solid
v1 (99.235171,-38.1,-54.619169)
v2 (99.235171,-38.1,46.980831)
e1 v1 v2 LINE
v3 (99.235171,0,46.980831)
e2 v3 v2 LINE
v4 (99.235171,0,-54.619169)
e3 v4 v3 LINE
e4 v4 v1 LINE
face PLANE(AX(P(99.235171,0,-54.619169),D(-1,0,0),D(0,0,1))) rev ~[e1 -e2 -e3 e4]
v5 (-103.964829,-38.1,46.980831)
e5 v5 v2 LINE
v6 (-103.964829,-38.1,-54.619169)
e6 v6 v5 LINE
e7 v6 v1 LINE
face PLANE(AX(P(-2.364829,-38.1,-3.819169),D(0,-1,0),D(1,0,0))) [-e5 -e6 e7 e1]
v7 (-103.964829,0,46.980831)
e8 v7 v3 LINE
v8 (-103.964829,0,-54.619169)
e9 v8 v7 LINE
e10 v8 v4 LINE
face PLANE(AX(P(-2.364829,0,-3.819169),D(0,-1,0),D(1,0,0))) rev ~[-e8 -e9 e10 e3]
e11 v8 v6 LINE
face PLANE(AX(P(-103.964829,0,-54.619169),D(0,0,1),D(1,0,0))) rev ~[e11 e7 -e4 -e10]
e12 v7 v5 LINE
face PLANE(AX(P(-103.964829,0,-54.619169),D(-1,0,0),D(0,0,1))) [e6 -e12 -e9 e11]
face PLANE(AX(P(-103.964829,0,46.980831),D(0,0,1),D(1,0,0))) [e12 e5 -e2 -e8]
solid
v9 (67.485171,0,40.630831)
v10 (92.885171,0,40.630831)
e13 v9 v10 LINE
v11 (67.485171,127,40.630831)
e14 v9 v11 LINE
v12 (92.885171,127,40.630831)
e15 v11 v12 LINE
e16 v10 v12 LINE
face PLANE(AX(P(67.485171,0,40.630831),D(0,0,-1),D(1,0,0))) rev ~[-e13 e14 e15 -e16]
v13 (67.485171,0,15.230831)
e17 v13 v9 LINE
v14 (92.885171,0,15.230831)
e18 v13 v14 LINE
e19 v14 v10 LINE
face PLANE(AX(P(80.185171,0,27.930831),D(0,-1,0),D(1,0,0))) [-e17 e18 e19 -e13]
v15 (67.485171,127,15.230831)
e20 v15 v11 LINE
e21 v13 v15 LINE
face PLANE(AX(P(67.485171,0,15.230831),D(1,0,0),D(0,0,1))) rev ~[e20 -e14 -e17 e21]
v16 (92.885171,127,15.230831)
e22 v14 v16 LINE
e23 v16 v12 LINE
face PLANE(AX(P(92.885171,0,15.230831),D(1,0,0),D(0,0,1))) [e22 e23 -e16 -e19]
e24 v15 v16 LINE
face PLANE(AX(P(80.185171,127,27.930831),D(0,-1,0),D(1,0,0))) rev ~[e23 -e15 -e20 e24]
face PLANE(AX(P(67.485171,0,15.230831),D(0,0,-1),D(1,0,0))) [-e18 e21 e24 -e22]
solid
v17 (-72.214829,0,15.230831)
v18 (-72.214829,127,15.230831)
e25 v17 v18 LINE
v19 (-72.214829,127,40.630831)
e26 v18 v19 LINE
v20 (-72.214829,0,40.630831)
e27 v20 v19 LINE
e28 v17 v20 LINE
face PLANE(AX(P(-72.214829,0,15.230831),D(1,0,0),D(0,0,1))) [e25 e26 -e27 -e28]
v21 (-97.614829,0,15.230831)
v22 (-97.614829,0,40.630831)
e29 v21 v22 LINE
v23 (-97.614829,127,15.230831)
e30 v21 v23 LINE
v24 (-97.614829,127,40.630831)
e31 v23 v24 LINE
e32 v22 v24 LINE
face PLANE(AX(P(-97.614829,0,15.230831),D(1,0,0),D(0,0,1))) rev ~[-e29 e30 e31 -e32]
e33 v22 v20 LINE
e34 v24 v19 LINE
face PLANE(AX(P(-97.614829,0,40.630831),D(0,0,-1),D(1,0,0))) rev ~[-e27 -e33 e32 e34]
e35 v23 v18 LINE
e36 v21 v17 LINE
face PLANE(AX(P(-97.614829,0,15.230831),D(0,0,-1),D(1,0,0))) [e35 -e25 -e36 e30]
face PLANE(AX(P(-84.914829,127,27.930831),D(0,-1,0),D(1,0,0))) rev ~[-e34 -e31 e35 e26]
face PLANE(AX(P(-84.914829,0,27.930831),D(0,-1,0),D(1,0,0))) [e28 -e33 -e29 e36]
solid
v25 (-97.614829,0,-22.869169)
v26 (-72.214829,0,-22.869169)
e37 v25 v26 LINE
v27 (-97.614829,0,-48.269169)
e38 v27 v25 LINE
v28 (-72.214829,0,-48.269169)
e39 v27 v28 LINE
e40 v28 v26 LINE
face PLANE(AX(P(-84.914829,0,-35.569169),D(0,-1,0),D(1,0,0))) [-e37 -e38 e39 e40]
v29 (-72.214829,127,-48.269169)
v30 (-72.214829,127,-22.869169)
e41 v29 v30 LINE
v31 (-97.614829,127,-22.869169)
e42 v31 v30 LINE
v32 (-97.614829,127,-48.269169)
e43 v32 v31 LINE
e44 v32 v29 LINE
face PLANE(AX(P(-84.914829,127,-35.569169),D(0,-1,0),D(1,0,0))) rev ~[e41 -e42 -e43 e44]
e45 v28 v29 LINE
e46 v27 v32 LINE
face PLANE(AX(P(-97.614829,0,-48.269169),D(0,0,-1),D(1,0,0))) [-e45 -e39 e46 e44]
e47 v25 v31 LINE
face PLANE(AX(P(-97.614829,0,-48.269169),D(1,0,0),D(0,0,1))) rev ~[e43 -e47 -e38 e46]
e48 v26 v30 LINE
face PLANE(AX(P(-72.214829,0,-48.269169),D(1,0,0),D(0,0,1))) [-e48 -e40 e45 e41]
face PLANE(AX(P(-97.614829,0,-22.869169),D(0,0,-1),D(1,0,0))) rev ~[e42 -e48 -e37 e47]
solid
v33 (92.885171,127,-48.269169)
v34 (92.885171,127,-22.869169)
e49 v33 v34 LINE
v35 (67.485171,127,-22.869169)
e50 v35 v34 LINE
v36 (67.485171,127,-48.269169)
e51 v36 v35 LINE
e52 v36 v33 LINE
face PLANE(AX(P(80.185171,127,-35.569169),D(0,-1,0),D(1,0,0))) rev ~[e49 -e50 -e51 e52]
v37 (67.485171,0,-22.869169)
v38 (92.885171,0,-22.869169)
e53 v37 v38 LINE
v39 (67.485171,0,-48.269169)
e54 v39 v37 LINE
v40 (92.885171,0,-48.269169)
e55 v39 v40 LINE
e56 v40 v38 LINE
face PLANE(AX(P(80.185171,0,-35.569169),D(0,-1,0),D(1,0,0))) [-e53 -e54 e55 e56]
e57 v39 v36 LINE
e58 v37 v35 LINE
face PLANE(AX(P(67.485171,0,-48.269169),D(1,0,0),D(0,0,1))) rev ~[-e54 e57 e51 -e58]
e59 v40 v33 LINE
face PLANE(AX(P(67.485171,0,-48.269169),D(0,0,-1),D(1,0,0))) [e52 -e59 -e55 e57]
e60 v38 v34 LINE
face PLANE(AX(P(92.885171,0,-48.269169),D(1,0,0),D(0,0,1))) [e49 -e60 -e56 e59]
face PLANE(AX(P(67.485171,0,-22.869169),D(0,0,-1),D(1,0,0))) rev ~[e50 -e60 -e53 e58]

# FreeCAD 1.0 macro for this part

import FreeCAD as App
import Part
import Sketcher
Q = App.Units.Quantity


def add_polygon(sketch, points):
    """Adds a closed chain of lines whose ends are joined by coincident constraints."""
    first, n = sketch.GeometryCount, len(points)
    for a, b in zip(points, points[1:] + points[:1]):
        sketch.addGeometry(Part.LineSegment(App.Vector(*a, 0), App.Vector(*b, 0)), False)
    for i in range(n):
        sketch.addConstraint(Sketcher.Constraint("Coincident", first + i, 2, first + (i + 1) % n, 1))

doc = App.newDocument("Part")
body = doc.addObject("PartDesign::Body", "Body")

# Sketch on XZ plane
sketch1 = doc.addObject("Sketcher::SketchObject", "Sketch")
body.addObject(sketch1)
sketch1.AttachmentSupport = (doc.XZ_Plane, [""])
sketch1.MapMode = "FlatFace"
add_polygon(sketch1, [(-104, 47), (-104, -55), (99, -55), (99, 47)])  # lines 0-3
sketch1.addConstraint(Sketcher.Constraint("Vertical", 0))
sketch1.addConstraint(Sketcher.Constraint("Horizontal", 1))
sketch1.addConstraint(Sketcher.Constraint("Vertical", 2))
sketch1.addConstraint(Sketcher.Constraint("Horizontal", 3))
sketch1.addConstraint(Sketcher.Constraint("DistanceX", 1, 1, 1, 2, Q("8 in")))
sketch1.addConstraint(Sketcher.Constraint("DistanceY", 0, 2, 0, 1, Q("4 in")))
sketch1.addConstraint(Sketcher.Constraint("DistanceX", 0, 2, -1, 1, Q("103.964829 mm")))
sketch1.addConstraint(Sketcher.Constraint("DistanceY", 0, 2, -1, 1, Q("54.619169 mm")))
pad1 = doc.addObject("PartDesign::Pad", "Pad")
body.addObject(pad1)
pad1.Profile = sketch1
pad1.Length = Q("1.5 in")
body2 = doc.addObject("PartDesign::Body", "Body001")
body2.AllowCompound = True

# Sketch on XZ plane
sketch2 = doc.addObject("Sketcher::SketchObject", "Sketch001")
body2.addObject(sketch2)
sketch2.AttachmentSupport = (doc.getObject("XZ_Plane001"), [""])
sketch2.MapMode = "FlatFace"
add_polygon(sketch2, [(-98, -23), (-98, -48), (-72, -48), (-72, -23)])  # lines 0-3
add_polygon(sketch2, [(-98, 41), (-98, 15), (-72, 15), (-72, 41)])  # lines 4-7
add_polygon(sketch2, [(67, 41), (67, 15), (93, 15), (93, 41)])  # lines 8-11
add_polygon(sketch2, [(67, -23), (67, -48), (93, -48), (93, -23)])  # lines 12-15
sketch2.addConstraint(Sketcher.Constraint("Vertical", 0))
sketch2.addConstraint(Sketcher.Constraint("Horizontal", 1))
sketch2.addConstraint(Sketcher.Constraint("Vertical", 2))
sketch2.addConstraint(Sketcher.Constraint("Horizontal", 3))
sketch2.addConstraint(Sketcher.Constraint("Vertical", 4))
sketch2.addConstraint(Sketcher.Constraint("Horizontal", 5))
sketch2.addConstraint(Sketcher.Constraint("Vertical", 6))
sketch2.addConstraint(Sketcher.Constraint("Horizontal", 7))
sketch2.addConstraint(Sketcher.Constraint("Vertical", 8))
sketch2.addConstraint(Sketcher.Constraint("Horizontal", 9))
sketch2.addConstraint(Sketcher.Constraint("Vertical", 10))
sketch2.addConstraint(Sketcher.Constraint("Horizontal", 11))
sketch2.addConstraint(Sketcher.Constraint("Vertical", 12))
sketch2.addConstraint(Sketcher.Constraint("Horizontal", 13))
sketch2.addConstraint(Sketcher.Constraint("Vertical", 14))
sketch2.addConstraint(Sketcher.Constraint("Horizontal", 15))
sketch2.addConstraint(Sketcher.Constraint("Horizontal", 5, 2, 8, 2))
sketch2.addConstraint(Sketcher.Constraint("Horizontal", 7, 2, 10, 2))
sketch2.addConstraint(Sketcher.Constraint("Horizontal", 1, 2, 12, 2))
sketch2.addConstraint(Sketcher.Constraint("Horizontal", 3, 2, 14, 2))
sketch2.addConstraint(Sketcher.Constraint("Vertical", 3, 2, 4, 2))
sketch2.addConstraint(Sketcher.Constraint("Vertical", 2, 2, 5, 2))
sketch2.addConstraint(Sketcher.Constraint("Vertical", 11, 2, 12, 2))
sketch2.addConstraint(Sketcher.Constraint("Vertical", 10, 2, 13, 2))
sketch2.addConstraint(Sketcher.Constraint("Equal", 7, 9))
sketch2.addConstraint(Sketcher.Constraint("Equal", 15, 0))
sketch2.addConstraint(Sketcher.Constraint("Equal", 2, 4))
sketch2.addConstraint(Sketcher.Constraint("DistanceX", 1, 1, 1, 2, Q("1 in")))
sketch2.addConstraint(Sketcher.Constraint("DistanceY", 3, 2, 4, 2, Q("1.5 in")))
sketch2.addConstraint(Sketcher.Constraint("DistanceX", 5, 2, 8, 2, Q("5.5 in")))
sketch2.addConstraint(Sketcher.Constraint("DistanceX", 0, 2, -1, 1, Q("97.614829 mm")))
sketch2.addConstraint(Sketcher.Constraint("DistanceY", 0, 2, -1, 1, Q("48.269169 mm")))
pad2 = doc.addObject("PartDesign::Pad", "Pad001")
body2.addObject(pad2)
pad2.Profile = sketch2
pad2.Length = Q("5 in")
pad2.Reversed = True

doc.recompute()
